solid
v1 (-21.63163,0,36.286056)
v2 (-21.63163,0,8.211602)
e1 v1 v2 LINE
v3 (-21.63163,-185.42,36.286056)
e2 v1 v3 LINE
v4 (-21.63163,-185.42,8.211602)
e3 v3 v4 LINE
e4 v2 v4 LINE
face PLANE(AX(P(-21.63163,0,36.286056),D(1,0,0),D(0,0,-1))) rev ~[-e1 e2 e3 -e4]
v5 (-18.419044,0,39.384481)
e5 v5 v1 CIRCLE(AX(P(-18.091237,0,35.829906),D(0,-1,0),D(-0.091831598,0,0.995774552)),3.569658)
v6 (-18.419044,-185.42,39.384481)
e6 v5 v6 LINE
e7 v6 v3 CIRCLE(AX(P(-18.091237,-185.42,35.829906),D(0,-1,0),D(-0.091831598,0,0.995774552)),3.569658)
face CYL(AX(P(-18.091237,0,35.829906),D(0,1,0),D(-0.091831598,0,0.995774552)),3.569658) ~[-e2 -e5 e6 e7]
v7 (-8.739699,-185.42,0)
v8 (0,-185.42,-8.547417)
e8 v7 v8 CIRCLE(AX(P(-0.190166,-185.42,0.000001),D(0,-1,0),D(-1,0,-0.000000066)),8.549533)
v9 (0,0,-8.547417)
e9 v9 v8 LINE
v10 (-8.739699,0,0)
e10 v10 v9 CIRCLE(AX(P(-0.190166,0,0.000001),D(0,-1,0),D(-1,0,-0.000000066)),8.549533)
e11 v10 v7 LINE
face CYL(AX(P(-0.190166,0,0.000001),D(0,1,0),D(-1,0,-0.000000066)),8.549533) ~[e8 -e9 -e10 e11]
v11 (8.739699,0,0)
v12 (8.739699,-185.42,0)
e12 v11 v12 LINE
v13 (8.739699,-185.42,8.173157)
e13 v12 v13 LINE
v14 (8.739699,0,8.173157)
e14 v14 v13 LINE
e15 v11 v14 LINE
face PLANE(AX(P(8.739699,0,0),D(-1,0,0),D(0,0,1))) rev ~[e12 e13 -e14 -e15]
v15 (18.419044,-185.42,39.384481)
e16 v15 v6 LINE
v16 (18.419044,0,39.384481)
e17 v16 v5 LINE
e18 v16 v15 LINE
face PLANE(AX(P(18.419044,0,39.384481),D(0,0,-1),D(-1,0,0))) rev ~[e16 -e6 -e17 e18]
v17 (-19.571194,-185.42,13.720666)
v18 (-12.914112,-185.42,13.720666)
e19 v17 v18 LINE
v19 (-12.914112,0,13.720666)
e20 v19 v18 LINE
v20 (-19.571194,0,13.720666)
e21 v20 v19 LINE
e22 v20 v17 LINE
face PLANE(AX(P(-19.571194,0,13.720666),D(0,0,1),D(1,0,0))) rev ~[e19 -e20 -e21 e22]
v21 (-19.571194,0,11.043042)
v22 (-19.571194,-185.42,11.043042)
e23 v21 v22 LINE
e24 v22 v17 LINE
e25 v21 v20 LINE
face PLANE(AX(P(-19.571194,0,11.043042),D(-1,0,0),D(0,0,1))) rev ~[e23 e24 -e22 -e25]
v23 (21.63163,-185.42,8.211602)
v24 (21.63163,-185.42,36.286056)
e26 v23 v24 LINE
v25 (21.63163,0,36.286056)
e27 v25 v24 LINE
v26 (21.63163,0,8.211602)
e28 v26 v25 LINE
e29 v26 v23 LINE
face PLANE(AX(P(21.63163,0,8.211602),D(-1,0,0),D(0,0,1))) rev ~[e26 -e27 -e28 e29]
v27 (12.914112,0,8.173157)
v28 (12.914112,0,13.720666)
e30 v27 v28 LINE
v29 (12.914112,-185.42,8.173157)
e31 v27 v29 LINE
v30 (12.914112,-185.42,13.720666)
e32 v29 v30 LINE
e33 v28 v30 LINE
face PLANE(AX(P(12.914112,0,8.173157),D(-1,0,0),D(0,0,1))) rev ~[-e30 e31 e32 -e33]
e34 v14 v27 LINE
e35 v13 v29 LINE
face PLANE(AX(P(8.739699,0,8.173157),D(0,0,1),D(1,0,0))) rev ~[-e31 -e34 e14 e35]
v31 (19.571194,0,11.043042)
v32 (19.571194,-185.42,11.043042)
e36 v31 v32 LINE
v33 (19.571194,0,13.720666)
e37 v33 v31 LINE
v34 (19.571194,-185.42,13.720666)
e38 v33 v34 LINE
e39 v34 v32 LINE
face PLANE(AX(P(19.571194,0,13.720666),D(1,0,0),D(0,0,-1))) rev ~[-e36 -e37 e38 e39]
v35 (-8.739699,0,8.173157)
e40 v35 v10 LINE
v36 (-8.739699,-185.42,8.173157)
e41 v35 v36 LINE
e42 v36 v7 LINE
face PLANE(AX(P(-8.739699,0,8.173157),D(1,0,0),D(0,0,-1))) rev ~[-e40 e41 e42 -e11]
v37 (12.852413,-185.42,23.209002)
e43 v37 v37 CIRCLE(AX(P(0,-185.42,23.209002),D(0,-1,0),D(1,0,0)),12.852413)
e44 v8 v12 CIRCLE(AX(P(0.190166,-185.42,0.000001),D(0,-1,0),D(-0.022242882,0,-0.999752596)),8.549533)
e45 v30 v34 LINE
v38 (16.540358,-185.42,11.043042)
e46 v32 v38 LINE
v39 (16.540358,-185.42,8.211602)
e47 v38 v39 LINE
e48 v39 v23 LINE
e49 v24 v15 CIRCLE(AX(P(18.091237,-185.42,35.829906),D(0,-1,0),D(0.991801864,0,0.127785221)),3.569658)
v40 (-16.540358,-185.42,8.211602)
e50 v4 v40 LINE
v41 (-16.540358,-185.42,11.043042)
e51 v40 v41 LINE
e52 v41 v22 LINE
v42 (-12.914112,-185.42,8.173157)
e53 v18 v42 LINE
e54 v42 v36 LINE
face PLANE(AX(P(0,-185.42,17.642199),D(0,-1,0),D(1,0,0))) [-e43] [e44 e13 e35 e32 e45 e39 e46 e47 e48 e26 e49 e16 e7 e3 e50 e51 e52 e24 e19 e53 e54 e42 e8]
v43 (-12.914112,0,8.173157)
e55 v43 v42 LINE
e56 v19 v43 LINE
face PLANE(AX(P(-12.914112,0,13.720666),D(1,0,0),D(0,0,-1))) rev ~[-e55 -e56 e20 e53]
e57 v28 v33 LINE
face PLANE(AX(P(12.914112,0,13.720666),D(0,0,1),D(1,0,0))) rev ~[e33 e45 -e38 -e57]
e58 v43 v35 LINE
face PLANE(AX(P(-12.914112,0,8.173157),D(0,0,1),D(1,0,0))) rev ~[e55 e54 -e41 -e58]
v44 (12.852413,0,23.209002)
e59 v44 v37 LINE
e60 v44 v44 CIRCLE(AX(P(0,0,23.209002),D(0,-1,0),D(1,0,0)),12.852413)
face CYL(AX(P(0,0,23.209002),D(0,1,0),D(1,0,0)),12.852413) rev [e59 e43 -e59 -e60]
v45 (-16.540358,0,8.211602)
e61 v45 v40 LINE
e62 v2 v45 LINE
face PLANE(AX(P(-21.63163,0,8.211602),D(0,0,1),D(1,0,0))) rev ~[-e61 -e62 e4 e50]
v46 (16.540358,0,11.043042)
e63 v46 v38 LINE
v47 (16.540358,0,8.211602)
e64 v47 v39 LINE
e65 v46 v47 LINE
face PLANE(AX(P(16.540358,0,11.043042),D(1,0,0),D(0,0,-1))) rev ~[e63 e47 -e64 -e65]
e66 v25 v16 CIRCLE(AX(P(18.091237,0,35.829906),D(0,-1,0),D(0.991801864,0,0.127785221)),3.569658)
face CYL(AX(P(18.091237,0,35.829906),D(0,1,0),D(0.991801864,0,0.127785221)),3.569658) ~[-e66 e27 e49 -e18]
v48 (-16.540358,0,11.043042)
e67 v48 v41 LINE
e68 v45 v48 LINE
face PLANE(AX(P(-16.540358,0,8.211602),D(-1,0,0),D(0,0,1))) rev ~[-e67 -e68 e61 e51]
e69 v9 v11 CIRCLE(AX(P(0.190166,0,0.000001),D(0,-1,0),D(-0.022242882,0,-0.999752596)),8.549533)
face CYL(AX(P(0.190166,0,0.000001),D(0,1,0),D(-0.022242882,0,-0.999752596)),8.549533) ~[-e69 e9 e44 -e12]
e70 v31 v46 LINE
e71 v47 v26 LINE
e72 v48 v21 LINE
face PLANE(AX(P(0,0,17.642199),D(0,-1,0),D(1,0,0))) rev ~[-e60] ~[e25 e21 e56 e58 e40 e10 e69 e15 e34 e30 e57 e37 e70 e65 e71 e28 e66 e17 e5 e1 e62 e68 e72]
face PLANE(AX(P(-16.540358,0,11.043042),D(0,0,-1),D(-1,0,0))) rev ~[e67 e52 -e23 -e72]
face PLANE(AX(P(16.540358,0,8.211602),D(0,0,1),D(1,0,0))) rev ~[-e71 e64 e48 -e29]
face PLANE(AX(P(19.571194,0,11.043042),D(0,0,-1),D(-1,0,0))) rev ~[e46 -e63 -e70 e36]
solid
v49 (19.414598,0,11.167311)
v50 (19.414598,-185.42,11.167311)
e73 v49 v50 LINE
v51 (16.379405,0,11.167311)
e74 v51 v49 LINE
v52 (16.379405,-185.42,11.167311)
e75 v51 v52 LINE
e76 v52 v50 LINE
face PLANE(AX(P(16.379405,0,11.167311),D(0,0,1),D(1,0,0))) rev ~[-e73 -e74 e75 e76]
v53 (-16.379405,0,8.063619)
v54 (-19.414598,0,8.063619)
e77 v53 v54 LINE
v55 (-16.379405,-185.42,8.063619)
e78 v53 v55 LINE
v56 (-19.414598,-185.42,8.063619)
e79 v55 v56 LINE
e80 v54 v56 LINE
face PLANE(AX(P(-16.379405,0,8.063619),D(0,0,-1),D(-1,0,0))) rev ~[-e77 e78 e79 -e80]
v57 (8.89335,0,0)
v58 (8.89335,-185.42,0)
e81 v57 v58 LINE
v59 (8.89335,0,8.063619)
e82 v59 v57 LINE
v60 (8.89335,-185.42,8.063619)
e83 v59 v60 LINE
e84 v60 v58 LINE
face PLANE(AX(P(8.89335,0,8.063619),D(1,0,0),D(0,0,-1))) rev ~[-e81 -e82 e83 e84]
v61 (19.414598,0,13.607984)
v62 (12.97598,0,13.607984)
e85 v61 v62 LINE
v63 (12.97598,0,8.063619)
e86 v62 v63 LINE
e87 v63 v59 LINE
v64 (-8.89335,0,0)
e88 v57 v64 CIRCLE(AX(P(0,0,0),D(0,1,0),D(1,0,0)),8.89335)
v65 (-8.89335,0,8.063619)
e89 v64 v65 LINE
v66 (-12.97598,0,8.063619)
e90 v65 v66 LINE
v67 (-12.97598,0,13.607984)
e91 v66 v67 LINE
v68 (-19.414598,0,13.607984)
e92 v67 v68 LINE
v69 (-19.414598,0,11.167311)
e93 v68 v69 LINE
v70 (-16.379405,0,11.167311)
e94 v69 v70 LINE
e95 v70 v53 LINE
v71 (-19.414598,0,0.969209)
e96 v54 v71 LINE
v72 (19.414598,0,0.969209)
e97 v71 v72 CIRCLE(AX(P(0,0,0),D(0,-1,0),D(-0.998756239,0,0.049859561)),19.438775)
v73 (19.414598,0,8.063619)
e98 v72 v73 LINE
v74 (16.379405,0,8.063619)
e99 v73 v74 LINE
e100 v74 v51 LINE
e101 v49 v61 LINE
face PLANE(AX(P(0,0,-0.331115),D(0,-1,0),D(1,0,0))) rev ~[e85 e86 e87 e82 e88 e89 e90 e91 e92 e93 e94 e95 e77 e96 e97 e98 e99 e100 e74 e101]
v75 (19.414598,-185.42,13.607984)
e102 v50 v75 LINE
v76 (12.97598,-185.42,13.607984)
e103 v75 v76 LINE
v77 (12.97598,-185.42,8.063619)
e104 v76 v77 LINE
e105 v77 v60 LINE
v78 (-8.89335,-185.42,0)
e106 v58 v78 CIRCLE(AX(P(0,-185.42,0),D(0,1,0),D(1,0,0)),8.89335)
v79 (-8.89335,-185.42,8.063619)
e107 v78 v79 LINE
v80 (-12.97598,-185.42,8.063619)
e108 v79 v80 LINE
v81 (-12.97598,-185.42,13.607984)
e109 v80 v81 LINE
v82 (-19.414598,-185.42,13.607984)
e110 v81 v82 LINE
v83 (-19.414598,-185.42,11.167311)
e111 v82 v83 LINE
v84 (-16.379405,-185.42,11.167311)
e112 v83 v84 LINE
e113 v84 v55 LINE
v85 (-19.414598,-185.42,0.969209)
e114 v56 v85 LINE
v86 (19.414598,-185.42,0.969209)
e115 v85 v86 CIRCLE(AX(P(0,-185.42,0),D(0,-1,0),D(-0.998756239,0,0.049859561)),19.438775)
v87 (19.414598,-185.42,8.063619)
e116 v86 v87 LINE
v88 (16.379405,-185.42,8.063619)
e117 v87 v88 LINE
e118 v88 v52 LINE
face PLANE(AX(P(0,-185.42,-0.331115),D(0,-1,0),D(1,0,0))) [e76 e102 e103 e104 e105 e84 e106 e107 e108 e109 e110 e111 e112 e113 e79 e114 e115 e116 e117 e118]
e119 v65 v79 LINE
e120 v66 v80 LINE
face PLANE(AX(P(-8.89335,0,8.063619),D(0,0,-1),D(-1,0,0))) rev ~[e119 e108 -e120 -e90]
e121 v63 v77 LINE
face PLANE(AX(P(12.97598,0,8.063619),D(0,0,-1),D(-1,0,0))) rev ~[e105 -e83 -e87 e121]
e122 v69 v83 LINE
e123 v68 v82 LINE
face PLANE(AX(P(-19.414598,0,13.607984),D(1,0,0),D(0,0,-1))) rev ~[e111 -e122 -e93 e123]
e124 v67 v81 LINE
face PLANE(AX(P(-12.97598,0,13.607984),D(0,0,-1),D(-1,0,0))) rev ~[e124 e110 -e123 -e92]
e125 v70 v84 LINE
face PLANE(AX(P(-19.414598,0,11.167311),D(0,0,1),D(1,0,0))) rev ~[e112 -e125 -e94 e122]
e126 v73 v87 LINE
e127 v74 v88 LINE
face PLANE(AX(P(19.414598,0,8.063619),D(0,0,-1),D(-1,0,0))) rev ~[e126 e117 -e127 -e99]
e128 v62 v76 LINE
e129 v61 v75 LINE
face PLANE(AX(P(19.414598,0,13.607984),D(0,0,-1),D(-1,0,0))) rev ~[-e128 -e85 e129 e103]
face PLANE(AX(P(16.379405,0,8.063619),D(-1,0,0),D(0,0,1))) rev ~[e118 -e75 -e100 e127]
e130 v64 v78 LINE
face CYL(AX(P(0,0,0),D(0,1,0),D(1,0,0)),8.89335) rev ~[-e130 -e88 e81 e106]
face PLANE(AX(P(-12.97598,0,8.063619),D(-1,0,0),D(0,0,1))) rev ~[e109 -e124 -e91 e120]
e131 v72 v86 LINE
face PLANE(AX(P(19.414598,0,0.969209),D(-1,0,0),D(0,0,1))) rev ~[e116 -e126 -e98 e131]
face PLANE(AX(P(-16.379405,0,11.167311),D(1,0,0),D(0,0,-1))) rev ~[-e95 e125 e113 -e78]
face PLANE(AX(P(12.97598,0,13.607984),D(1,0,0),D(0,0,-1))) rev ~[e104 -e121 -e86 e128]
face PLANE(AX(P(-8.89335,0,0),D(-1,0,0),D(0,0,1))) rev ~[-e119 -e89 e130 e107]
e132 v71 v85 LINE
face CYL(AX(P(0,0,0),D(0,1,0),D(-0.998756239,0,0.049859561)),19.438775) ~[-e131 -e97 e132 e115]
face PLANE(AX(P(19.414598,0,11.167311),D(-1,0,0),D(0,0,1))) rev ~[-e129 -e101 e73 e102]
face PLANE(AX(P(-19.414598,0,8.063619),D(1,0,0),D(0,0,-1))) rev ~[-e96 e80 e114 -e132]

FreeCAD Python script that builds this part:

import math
import FreeCAD as App
import Part
import Sketcher

V = App.Vector
Q = App.Units.Quantity

doc = App.newDocument("Part")
body = doc.addObject("PartDesign::Body", "Body")
body.AllowCompound = True

# Sketch on XZ plane
sketch1 = doc.addObject("Sketcher::SketchObject", "Sketch")
body.addObject(sketch1)
sketch1.AttachmentSupport = (doc.XZ_Plane, [""])
sketch1.MapMode = "FlatFace"
sketch1.addGeometry(Part.ArcOfCircle(Part.Circle(V(0, 0, 0), V(0, 0, 1), 8.9), math.radians(180), math.radians(360)), False)
sketch1.addGeometry(Part.LineSegment(V(-8.9, 0, 0), V(-8.9, 8.1, 0)), False)
sketch1.addGeometry(Part.LineSegment(V(-8.9, 8.1, 0), V(-13, 8.1, 0)), False)
sketch1.addGeometry(Part.LineSegment(V(-13, 8.1, 0), V(-13, 13.6, 0)), False)
sketch1.addGeometry(Part.LineSegment(V(-13, 13.6, 0), V(-19.4, 13.6, 0)), False)
sketch1.addGeometry(Part.LineSegment(V(-19.4, 13.6, 0), V(-19.4, 11.2, 0)), False)
sketch1.addGeometry(Part.LineSegment(V(-19.4, 11.2, 0), V(-16.4, 11.2, 0)), False)
sketch1.addGeometry(Part.LineSegment(V(-16.4, 11.2, 0), V(-16.4, 8.1, 0)), False)
sketch1.addGeometry(Part.LineSegment(V(-16.4, 8.1, 0), V(-19.4, 8.1, 0)), False)
sketch1.addGeometry(Part.LineSegment(V(-19.4, 8.1, 0), V(-19.4, 1, 0)), False)
sketch1.addGeometry(Part.ArcOfCircle(Part.Circle(V(0, 0, 0), V(0, 0, 1), 19.4), math.radians(177), math.radians(363)), False)
sketch1.addGeometry(Part.LineSegment(V(19.4, 1, 0), V(19.4, 8.1, 0)), False)
sketch1.addGeometry(Part.LineSegment(V(19.4, 8.1, 0), V(16.4, 8.1, 0)), False)
sketch1.addGeometry(Part.LineSegment(V(16.4, 8.1, 0), V(16.4, 11.2, 0)), False)
sketch1.addGeometry(Part.LineSegment(V(16.4, 11.2, 0), V(19.4, 11.2, 0)), False)
sketch1.addGeometry(Part.LineSegment(V(19.4, 11.2, 0), V(19.4, 13.6, 0)), False)
sketch1.addGeometry(Part.LineSegment(V(19.4, 13.6, 0), V(13, 13.6, 0)), False)
sketch1.addGeometry(Part.LineSegment(V(13, 13.6, 0), V(13, 8.1, 0)), False)
sketch1.addGeometry(Part.LineSegment(V(13, 8.1, 0), V(8.9, 8.1, 0)), False)
sketch1.addGeometry(Part.LineSegment(V(8.9, 8.1, 0), V(8.9, 0, 0)), False)
sketch1.addGeometry(Part.LineSegment(V(-16.5, 11, 0), V(-19.6, 11, 0)), False)
sketch1.addGeometry(Part.LineSegment(V(-19.6, 11, 0), V(-19.6, 13.7, 0)), False)
sketch1.addGeometry(Part.LineSegment(V(-19.6, 13.7, 0), V(-12.9, 13.7, 0)), False)
sketch1.addGeometry(Part.LineSegment(V(-12.9, 13.7, 0), V(-12.9, 8.2, 0)), False)
sketch1.addGeometry(Part.LineSegment(V(-12.9, 8.2, 0), V(-8.7, 8.2, 0)), False)
sketch1.addGeometry(Part.LineSegment(V(-8.7, 8.2, 0), V(-8.7, 0, 0)), False)
sketch1.addGeometry(Part.ArcOfCircle(Part.Circle(V(-0.2, 0, 0), V(0, 0, 1), 8.5), math.radians(-180), math.radians(-89)), False)
sketch1.addGeometry(Part.ArcOfCircle(Part.Circle(V(0.2, 0, 0), V(0, 0, 1), 8.5), math.radians(-91), math.radians(0)), False)
sketch1.addGeometry(Part.LineSegment(V(8.7, 0, 0), V(8.7, 8.2, 0)), False)
sketch1.addGeometry(Part.LineSegment(V(8.7, 8.2, 0), V(12.9, 8.2, 0)), False)
sketch1.addGeometry(Part.LineSegment(V(12.9, 8.2, 0), V(12.9, 13.7, 0)), False)
sketch1.addGeometry(Part.LineSegment(V(12.9, 13.7, 0), V(19.6, 13.7, 0)), False)
sketch1.addGeometry(Part.LineSegment(V(19.6, 13.7, 0), V(19.6, 11, 0)), False)
sketch1.addGeometry(Part.LineSegment(V(19.6, 11, 0), V(16.5, 11, 0)), False)
sketch1.addGeometry(Part.LineSegment(V(16.5, 11, 0), V(16.5, 8.2, 0)), False)
sketch1.addGeometry(Part.LineSegment(V(16.5, 8.2, 0), V(21.6, 8.2, 0)), False)
sketch1.addGeometry(Part.LineSegment(V(21.6, 8.2, 0), V(21.6, 36.3, 0)), False)
sketch1.addGeometry(Part.ArcOfCircle(Part.Circle(V(18.1, 35.8, 0), V(0, 0, 1), 3.6), math.radians(7), math.radians(85)), False)
sketch1.addGeometry(Part.LineSegment(V(18.4, 39.4, 0), V(-18.4, 39.4, 0)), False)
sketch1.addGeometry(Part.ArcOfCircle(Part.Circle(V(-18.1, 35.8, 0), V(0, 0, 1), 3.6), math.radians(95), math.radians(173)), False)
sketch1.addGeometry(Part.LineSegment(V(-21.6, 36.3, 0), V(-21.6, 8.2, 0)), False)
sketch1.addGeometry(Part.LineSegment(V(-21.6, 8.2, 0), V(-16.5, 8.2, 0)), False)
sketch1.addGeometry(Part.LineSegment(V(-16.5, 8.2, 0), V(-16.5, 11, 0)), False)
sketch1.addGeometry(Part.Circle(V(0, 23.2, 0), V(0, 0, 1), 12.9), False)
sketch1.addConstraint(Sketcher.Constraint("Tangent", 0, 1, 1, 1))
sketch1.addConstraint(Sketcher.Constraint("Coincident", 1, 2, 2, 1))
sketch1.addConstraint(Sketcher.Constraint("Coincident", 2, 2, 3, 1))
sketch1.addConstraint(Sketcher.Constraint("Coincident", 3, 2, 4, 1))
sketch1.addConstraint(Sketcher.Constraint("Coincident", 4, 2, 5, 1))
sketch1.addConstraint(Sketcher.Constraint("Coincident", 5, 2, 6, 1))
sketch1.addConstraint(Sketcher.Constraint("Coincident", 6, 2, 7, 1))
sketch1.addConstraint(Sketcher.Constraint("Coincident", 7, 2, 8, 1))
sketch1.addConstraint(Sketcher.Constraint("Coincident", 8, 2, 9, 1))
sketch1.addConstraint(Sketcher.Constraint("Coincident", 9, 2, 10, 1))
sketch1.addConstraint(Sketcher.Constraint("Coincident", 10, 2, 11, 1))
sketch1.addConstraint(Sketcher.Constraint("Coincident", 11, 2, 12, 1))
sketch1.addConstraint(Sketcher.Constraint("Coincident", 12, 2, 13, 1))
sketch1.addConstraint(Sketcher.Constraint("Coincident", 13, 2, 14, 1))
sketch1.addConstraint(Sketcher.Constraint("Coincident", 14, 2, 15, 1))
sketch1.addConstraint(Sketcher.Constraint("Coincident", 15, 2, 16, 1))
sketch1.addConstraint(Sketcher.Constraint("Coincident", 16, 2, 17, 1))
sketch1.addConstraint(Sketcher.Constraint("Coincident", 17, 2, 18, 1))
sketch1.addConstraint(Sketcher.Constraint("Coincident", 18, 2, 19, 1))
sketch1.addConstraint(Sketcher.Constraint("Tangent", 19, 2, 0, 2))
sketch1.addConstraint(Sketcher.Constraint("Coincident", 20, 2, 21, 1))
sketch1.addConstraint(Sketcher.Constraint("Coincident", 21, 2, 22, 1))
sketch1.addConstraint(Sketcher.Constraint("Coincident", 22, 2, 23, 1))
sketch1.addConstraint(Sketcher.Constraint("Coincident", 23, 2, 24, 1))
sketch1.addConstraint(Sketcher.Constraint("Coincident", 24, 2, 25, 1))
sketch1.addConstraint(Sketcher.Constraint("Tangent", 25, 2, 26, 1))
sketch1.addConstraint(Sketcher.Constraint("Coincident", 26, 2, 27, 1))
sketch1.addConstraint(Sketcher.Constraint("Tangent", 27, 2, 28, 1))
sketch1.addConstraint(Sketcher.Constraint("Coincident", 28, 2, 29, 1))
sketch1.addConstraint(Sketcher.Constraint("Coincident", 29, 2, 30, 1))
sketch1.addConstraint(Sketcher.Constraint("Coincident", 30, 2, 31, 1))
sketch1.addConstraint(Sketcher.Constraint("Coincident", 31, 2, 32, 1))
sketch1.addConstraint(Sketcher.Constraint("Coincident", 32, 2, 33, 1))
sketch1.addConstraint(Sketcher.Constraint("Coincident", 33, 2, 34, 1))
sketch1.addConstraint(Sketcher.Constraint("Coincident", 34, 2, 35, 1))
sketch1.addConstraint(Sketcher.Constraint("Coincident", 35, 2, 36, 1))
sketch1.addConstraint(Sketcher.Constraint("Coincident", 36, 2, 37, 1))
sketch1.addConstraint(Sketcher.Constraint("Coincident", 37, 2, 38, 1))
sketch1.addConstraint(Sketcher.Constraint("Coincident", 38, 2, 39, 1))
sketch1.addConstraint(Sketcher.Constraint("Coincident", 39, 2, 40, 1))
sketch1.addConstraint(Sketcher.Constraint("Coincident", 40, 2, 41, 1))
sketch1.addConstraint(Sketcher.Constraint("Coincident", 41, 2, 42, 1))
sketch1.addConstraint(Sketcher.Constraint("Coincident", 42, 2, 20, 1))
sketch1.addConstraint(Sketcher.Constraint("Vertical", 1))
sketch1.addConstraint(Sketcher.Constraint("Horizontal", 2))
sketch1.addConstraint(Sketcher.Constraint("Vertical", 3))
sketch1.addConstraint(Sketcher.Constraint("Horizontal", 4))
sketch1.addConstraint(Sketcher.Constraint("Vertical", 5))
sketch1.addConstraint(Sketcher.Constraint("Horizontal", 6))
sketch1.addConstraint(Sketcher.Constraint("Vertical", 7))
sketch1.addConstraint(Sketcher.Constraint("Horizontal", 8))
sketch1.addConstraint(Sketcher.Constraint("Vertical", 9))
sketch1.addConstraint(Sketcher.Constraint("Vertical", 11))
sketch1.addConstraint(Sketcher.Constraint("Horizontal", 12))
sketch1.addConstraint(Sketcher.Constraint("Vertical", 13))
sketch1.addConstraint(Sketcher.Constraint("Horizontal", 14))
sketch1.addConstraint(Sketcher.Constraint("Vertical", 15))
sketch1.addConstraint(Sketcher.Constraint("Horizontal", 16))
sketch1.addConstraint(Sketcher.Constraint("Vertical", 17))
sketch1.addConstraint(Sketcher.Constraint("Horizontal", 18))
sketch1.addConstraint(Sketcher.Constraint("Vertical", 19))
sketch1.addConstraint(Sketcher.Constraint("Horizontal", 20))
sketch1.addConstraint(Sketcher.Constraint("Vertical", 21))
sketch1.addConstraint(Sketcher.Constraint("Horizontal", 22))
sketch1.addConstraint(Sketcher.Constraint("Vertical", 23))
sketch1.addConstraint(Sketcher.Constraint("Horizontal", 24))
sketch1.addConstraint(Sketcher.Constraint("Vertical", 25))
sketch1.addConstraint(Sketcher.Constraint("Vertical", 28))
sketch1.addConstraint(Sketcher.Constraint("Horizontal", 29))
sketch1.addConstraint(Sketcher.Constraint("Vertical", 30))
sketch1.addConstraint(Sketcher.Constraint("Horizontal", 31))
sketch1.addConstraint(Sketcher.Constraint("Vertical", 32))
sketch1.addConstraint(Sketcher.Constraint("Horizontal", 33))
sketch1.addConstraint(Sketcher.Constraint("Vertical", 34))
sketch1.addConstraint(Sketcher.Constraint("Horizontal", 35))
sketch1.addConstraint(Sketcher.Constraint("Vertical", 36))
sketch1.addConstraint(Sketcher.Constraint("Horizontal", 38))
sketch1.addConstraint(Sketcher.Constraint("Vertical", 40))
sketch1.addConstraint(Sketcher.Constraint("Horizontal", 41))
sketch1.addConstraint(Sketcher.Constraint("Vertical", 42))
sketch1.addConstraint(Sketcher.Constraint("Coincident", 0, 3, -1, 1))
sketch1.addConstraint(Sketcher.Constraint("Coincident", 10, 3, -1, 1))
sketch1.addConstraint(Sketcher.Constraint("Equal", 26, 27))
sketch1.addConstraint(Sketcher.Constraint("Equal", 37, 39))
sketch1.addConstraint(Sketcher.Constraint("Symmetric", 26, 3, 27, 3, -1, 1))
sketch1.addConstraint(Sketcher.Constraint("Symmetric", 37, 3, 39, 3, -2))
sketch1.addConstraint(Sketcher.Constraint("Symmetric", 8, 2, 11, 2, -2))
sketch1.addConstraint(Sketcher.Constraint("Symmetric", 6, 2, 13, 2, -2))
sketch1.addConstraint(Sketcher.Constraint("Symmetric", 4, 2, 15, 2, -2))
sketch1.addConstraint(Sketcher.Constraint("Symmetric", 2, 2, 17, 2, -2))
sketch1.addConstraint(Sketcher.Constraint("Symmetric", 23, 2, 29, 2, -2))
sketch1.addConstraint(Sketcher.Constraint("Symmetric", 21, 2, 31, 2, -2))
sketch1.addConstraint(Sketcher.Constraint("Symmetric", 35, 2, 40, 2, -2))
sketch1.addConstraint(Sketcher.Constraint("Symmetric", 33, 2, 42, 2, -2))
sketch1.addConstraint(Sketcher.Constraint("PointOnObject", 26, 3, -1))
sketch1.addConstraint(Sketcher.Constraint("PointOnObject", 43, 3, -2))
sketch1.addConstraint(Sketcher.Constraint("Horizontal", 2, 2, 7, 2))
sketch1.addConstraint(Sketcher.Constraint("Vertical", 5, 2, 8, 2))
sketch1.addConstraint(Sketcher.Constraint("Radius", 0, 8.89335))
sketch1.addConstraint(Sketcher.Constraint("Diameter", 43, 25.704826))
sketch1.addConstraint(Sketcher.Constraint("Radius", 10, 19.438775))
sketch1.addConstraint(Sketcher.Constraint("Radius", 26, 8.549533))
sketch1.addConstraint(Sketcher.Constraint("Radius", 37, 3.569658))
sketch1.addConstraint(Sketcher.Constraint("DistanceY", 9, 2, 5, 2, Q("0.4015001 in")))
sketch1.addConstraint(Sketcher.Constraint("DistanceY", 8, 2, 20, 2, Q("0.1173001 in")))
sketch1.addConstraint(Sketcher.Constraint("DistanceX", 2, 2, 2, 1, 4.08263))
sketch1.addConstraint(Sketcher.Constraint("DistanceX", 4, 2, 4, 1, 6.438618))
sketch1.addConstraint(Sketcher.Constraint("DistanceX", 22, 1, 22, 2, 6.657082))
sketch1.addConstraint(Sketcher.Constraint("DistanceY", 1, 1, 1, 2, 8.063619))
sketch1.addConstraint(Sketcher.Constraint("DistanceY", 23, 2, 23, 1, 5.547509))
sketch1.addConstraint(Sketcher.Constraint("DistanceY", 34, 2, 34, 1, 2.83144))
sketch1.addConstraint(Sketcher.Constraint("DistanceX", 24, 2, -1, 1, 8.739699))
sketch1.addConstraint(Sketcher.Constraint("DistanceY", 10, 3, 43, 3, 23.209002))
sketch1.addConstraint(Sketcher.Constraint("DistanceX", 6, 1, 6, 2, 3.035193))
sketch1.addConstraint(Sketcher.Constraint("DistanceX", 20, 2, 20, 1, 3.030836))
sketch1.addConstraint(Sketcher.Constraint("DistanceX", 24, 1, 24, 2, 4.174413))
sketch1.addConstraint(Sketcher.Constraint("DistanceX", 35, 1, 35, 2, 5.091272))
sketch1.addConstraint(Sketcher.Constraint("DistanceX", 38, 2, 38, 1, 36.838088))
sketch1.addConstraint(Sketcher.Constraint("DistanceY", 3, 1, 3, 2, 5.544365))
sketch1.addConstraint(Sketcher.Constraint("DistanceY", 21, 1, 21, 2, 2.677624))
sketch1.addConstraint(Sketcher.Constraint("DistanceY", 36, 1, 36, 2, 28.074454))
sketch1.addConstraint(Sketcher.Constraint("DistanceY", -1, 1, 37, 2, 39.384481))
pad1 = doc.addObject("PartDesign::Pad", "Pad")
body.addObject(pad1)
pad1.Profile = sketch1
pad1.Length = Q("7.3 in")

doc.recompute()
